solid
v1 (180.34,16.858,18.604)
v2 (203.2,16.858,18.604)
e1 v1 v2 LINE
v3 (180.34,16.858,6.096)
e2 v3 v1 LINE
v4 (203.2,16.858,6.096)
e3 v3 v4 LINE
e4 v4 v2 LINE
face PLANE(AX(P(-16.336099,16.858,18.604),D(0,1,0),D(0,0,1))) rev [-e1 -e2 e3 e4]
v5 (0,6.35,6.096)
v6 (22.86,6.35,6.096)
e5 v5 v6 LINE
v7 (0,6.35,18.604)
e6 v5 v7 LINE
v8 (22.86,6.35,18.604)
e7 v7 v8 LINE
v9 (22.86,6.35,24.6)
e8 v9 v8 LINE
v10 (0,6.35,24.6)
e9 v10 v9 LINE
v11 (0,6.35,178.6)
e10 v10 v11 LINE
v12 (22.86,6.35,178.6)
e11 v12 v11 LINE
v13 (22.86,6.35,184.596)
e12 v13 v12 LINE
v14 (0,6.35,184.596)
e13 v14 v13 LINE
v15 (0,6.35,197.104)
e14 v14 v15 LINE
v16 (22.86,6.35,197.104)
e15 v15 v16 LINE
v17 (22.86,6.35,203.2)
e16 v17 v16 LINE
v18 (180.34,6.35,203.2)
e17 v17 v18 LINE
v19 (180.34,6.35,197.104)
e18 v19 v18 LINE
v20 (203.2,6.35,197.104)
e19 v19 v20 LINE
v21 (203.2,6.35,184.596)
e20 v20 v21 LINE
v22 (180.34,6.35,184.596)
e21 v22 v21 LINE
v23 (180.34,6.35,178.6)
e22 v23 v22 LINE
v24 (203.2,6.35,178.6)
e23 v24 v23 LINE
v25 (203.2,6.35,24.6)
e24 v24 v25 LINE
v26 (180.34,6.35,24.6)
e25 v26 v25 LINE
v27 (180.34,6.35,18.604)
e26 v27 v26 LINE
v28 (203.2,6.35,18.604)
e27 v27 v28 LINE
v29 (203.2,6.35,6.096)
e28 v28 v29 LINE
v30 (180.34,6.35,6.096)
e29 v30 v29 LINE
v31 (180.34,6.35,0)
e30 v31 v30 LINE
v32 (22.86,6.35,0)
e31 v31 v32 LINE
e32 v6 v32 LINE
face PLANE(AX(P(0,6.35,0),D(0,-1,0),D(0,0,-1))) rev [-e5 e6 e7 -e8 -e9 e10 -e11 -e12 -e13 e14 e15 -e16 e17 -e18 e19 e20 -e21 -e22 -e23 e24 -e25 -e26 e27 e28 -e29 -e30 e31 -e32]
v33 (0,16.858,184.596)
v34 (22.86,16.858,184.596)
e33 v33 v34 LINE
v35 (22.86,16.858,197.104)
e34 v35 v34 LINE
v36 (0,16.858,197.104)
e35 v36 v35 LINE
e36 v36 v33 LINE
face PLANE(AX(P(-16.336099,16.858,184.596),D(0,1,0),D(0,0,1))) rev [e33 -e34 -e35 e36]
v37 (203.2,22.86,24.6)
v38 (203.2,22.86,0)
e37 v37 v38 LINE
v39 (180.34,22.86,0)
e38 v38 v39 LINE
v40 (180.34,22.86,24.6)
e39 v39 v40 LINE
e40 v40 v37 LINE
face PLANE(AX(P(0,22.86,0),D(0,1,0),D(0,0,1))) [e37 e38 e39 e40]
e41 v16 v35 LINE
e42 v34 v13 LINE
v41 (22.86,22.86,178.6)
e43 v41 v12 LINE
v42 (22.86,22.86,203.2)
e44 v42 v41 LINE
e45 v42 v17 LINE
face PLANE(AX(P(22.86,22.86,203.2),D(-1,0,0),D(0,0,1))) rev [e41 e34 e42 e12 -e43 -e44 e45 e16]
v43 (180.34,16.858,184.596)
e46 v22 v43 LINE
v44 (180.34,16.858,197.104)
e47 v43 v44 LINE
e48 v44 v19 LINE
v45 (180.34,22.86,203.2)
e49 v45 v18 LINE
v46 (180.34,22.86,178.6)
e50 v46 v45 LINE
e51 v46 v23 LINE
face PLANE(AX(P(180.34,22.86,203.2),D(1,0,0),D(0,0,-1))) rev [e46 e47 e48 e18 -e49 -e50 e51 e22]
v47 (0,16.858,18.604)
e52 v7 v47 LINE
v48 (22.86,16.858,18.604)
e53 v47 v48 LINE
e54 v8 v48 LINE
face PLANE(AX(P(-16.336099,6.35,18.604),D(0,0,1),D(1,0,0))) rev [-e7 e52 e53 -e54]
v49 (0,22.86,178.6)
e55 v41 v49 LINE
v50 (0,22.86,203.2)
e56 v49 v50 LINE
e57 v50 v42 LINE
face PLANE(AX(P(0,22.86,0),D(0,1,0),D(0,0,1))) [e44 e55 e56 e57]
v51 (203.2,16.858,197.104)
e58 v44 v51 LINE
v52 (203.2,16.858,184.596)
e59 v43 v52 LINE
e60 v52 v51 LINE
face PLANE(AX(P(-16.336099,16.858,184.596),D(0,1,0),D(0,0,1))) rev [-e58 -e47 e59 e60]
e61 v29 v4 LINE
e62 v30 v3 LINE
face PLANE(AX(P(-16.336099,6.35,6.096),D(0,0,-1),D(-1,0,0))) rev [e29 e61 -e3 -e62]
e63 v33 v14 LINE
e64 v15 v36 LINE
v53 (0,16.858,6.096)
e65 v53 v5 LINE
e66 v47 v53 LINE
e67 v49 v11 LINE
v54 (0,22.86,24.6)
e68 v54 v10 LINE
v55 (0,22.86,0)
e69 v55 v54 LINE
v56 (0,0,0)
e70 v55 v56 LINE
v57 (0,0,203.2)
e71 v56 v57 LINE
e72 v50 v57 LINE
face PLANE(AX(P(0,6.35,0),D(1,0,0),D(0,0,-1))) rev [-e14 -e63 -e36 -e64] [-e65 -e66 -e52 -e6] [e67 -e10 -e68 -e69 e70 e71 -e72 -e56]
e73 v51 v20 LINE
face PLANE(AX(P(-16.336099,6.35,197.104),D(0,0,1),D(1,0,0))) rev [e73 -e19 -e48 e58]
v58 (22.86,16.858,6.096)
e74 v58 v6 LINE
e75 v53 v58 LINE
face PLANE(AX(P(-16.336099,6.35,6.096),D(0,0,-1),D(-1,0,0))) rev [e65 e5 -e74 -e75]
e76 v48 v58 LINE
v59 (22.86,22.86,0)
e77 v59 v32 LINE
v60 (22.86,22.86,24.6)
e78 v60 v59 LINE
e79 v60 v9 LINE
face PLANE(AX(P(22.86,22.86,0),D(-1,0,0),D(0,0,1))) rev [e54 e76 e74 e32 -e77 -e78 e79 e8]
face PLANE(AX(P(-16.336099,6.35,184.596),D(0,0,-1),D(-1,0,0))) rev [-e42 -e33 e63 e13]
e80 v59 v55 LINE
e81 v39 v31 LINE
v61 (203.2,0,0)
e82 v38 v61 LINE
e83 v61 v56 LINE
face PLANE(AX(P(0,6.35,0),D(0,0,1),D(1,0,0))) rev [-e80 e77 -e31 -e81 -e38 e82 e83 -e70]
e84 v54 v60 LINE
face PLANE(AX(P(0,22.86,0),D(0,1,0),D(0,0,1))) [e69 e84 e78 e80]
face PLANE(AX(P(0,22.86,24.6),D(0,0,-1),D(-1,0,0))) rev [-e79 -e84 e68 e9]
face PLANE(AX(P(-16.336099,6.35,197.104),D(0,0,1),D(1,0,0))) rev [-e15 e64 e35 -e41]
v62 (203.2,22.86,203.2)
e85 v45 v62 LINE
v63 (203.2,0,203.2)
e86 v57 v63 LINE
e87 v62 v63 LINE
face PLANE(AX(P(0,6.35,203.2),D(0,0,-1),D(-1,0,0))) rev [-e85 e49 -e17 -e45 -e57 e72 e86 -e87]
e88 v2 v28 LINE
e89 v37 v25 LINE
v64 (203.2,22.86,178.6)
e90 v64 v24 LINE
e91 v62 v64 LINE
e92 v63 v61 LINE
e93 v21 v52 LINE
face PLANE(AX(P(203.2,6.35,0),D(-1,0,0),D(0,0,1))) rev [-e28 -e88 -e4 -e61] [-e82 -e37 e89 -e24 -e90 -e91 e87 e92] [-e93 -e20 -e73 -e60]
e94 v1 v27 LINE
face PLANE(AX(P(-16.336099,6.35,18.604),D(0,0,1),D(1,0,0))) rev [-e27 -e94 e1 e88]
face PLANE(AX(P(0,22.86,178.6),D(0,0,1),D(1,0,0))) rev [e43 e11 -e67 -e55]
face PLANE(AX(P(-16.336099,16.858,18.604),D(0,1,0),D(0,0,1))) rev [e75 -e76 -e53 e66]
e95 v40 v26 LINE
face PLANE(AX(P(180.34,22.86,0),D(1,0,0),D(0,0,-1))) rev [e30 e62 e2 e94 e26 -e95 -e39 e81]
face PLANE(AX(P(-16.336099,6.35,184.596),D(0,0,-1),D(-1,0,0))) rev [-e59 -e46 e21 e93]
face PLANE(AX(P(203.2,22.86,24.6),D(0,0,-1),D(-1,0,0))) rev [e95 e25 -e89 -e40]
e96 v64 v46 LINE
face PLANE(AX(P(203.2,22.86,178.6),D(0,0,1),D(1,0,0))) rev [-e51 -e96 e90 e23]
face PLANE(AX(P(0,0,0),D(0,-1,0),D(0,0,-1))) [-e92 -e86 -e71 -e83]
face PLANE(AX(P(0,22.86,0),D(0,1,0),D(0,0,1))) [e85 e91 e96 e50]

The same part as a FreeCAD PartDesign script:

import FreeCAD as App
import Part
import Sketcher

V = App.Vector
Q = App.Units.Quantity

doc = App.newDocument("Part")
body = doc.addObject("PartDesign::Body", "Body")

sketch1 = body.newObject("Sketcher::SketchObject", "Sketch")
sketch1.AttachmentSupport = (doc.getObject("XZ_Plane"), [""])
sketch1.MapMode = "FlatFace"
sketch1.addGeometry([
    Part.LineSegment(V(0, 0, 0), V(0, 203, 0)),
    Part.LineSegment(V(0, 203, 0), V(203, 203, 0)),
    Part.LineSegment(V(203, 203, 0), V(203, 0, 0)),
    Part.LineSegment(V(203, 0, 0), V(0, 0, 0)),
], False)
sketch1.addConstraint([
    Sketcher.Constraint("Coincident", 0, 2, 1, 1),
    Sketcher.Constraint("Coincident", 1, 2, 2, 1),
    Sketcher.Constraint("Coincident", 2, 2, 3, 1),
    Sketcher.Constraint("Coincident", 3, 2, 0, 1),
    Sketcher.Constraint("Vertical", 0),
    Sketcher.Constraint("Horizontal", 1),
    Sketcher.Constraint("Vertical", 2),
    Sketcher.Constraint("Horizontal", 3),
    Sketcher.Constraint("Coincident", 3, 2, -1, 1),
    Sketcher.Constraint("Equal", 3, 0),
    Sketcher.Constraint("DistanceX", 1, 1, 1, 2, Q("8 in")),
])
pad1 = body.newObject("PartDesign::Pad", "Pad")
pad1.Profile = sketch1
pad1.Length = Q("0.25 in")
pad1.Reversed = True

sketch2 = body.newObject("Sketcher::SketchObject", "Sketch001")
sketch2.AttachmentSupport = (doc.getObject("XZ_Plane"), [""])
sketch2.MapMode = "FlatFace"
sketch2.AttachmentOffset = App.Placement(V(0, 0, -0.25 * 25.4), App.Rotation())
sketch2.addGeometry([
    Part.LineSegment(V(180, 179, 0), V(180, 203, 0)),
    Part.LineSegment(V(180, 203, 0), V(203, 203, 0)),
    Part.LineSegment(V(203, 203, 0), V(203, 179, 0)),
    Part.LineSegment(V(203, 179, 0), V(180, 179, 0)),
    Part.LineSegment(V(0, 179, 0), V(0, 203, 0)),
    Part.LineSegment(V(0, 203, 0), V(23, 203, 0)),
    Part.LineSegment(V(23, 203, 0), V(23, 179, 0)),
    Part.LineSegment(V(23, 179, 0), V(0, 179, 0)),
    Part.LineSegment(V(0, 0, 0), V(0, 25, 0)),
    Part.LineSegment(V(0, 25, 0), V(23, 25, 0)),
    Part.LineSegment(V(23, 25, 0), V(23, 0, 0)),
    Part.LineSegment(V(23, 0, 0), V(0, 0, 0)),
    Part.LineSegment(V(180, 0, 0), V(180, 25, 0)),
    Part.LineSegment(V(180, 25, 0), V(203, 25, 0)),
    Part.LineSegment(V(203, 25, 0), V(203, 0, 0)),
    Part.LineSegment(V(203, 0, 0), V(180, 0, 0)),
], False)
sketch2.addConstraint([
    Sketcher.Constraint("Coincident", 0, 2, 1, 1),
    Sketcher.Constraint("Coincident", 1, 2, 2, 1),
    Sketcher.Constraint("Coincident", 2, 2, 3, 1),
    Sketcher.Constraint("Coincident", 3, 2, 0, 1),
    Sketcher.Constraint("Coincident", 4, 2, 5, 1),
    Sketcher.Constraint("Coincident", 5, 2, 6, 1),
    Sketcher.Constraint("Coincident", 6, 2, 7, 1),
    Sketcher.Constraint("Coincident", 7, 2, 4, 1),
    Sketcher.Constraint("Coincident", 8, 2, 9, 1),
    Sketcher.Constraint("Coincident", 9, 2, 10, 1),
    Sketcher.Constraint("Coincident", 10, 2, 11, 1),
    Sketcher.Constraint("Coincident", 11, 2, 8, 1),
    Sketcher.Constraint("Coincident", 12, 2, 13, 1),
    Sketcher.Constraint("Coincident", 13, 2, 14, 1),
    Sketcher.Constraint("Coincident", 14, 2, 15, 1),
    Sketcher.Constraint("Coincident", 15, 2, 12, 1),
    Sketcher.Constraint("Vertical", 0),
    Sketcher.Constraint("Horizontal", 1),
    Sketcher.Constraint("Vertical", 2),
    Sketcher.Constraint("Horizontal", 3),
    Sketcher.Constraint("Vertical", 4),
    Sketcher.Constraint("Horizontal", 5),
    Sketcher.Constraint("Vertical", 6),
    Sketcher.Constraint("Horizontal", 7),
    Sketcher.Constraint("Vertical", 8),
    Sketcher.Constraint("Horizontal", 9),
    Sketcher.Constraint("Vertical", 10),
    Sketcher.Constraint("Horizontal", 11),
    Sketcher.Constraint("Vertical", 12),
    Sketcher.Constraint("Horizontal", 13),
    Sketcher.Constraint("Vertical", 14),
    Sketcher.Constraint("Horizontal", 15),
    Sketcher.Constraint("Coincident", 11, 2, -1, 1),
    Sketcher.Constraint("PointOnObject", 4, 2, -2),
    Sketcher.Constraint("PointOnObject", 14, 2, -1),
    Sketcher.Constraint("Horizontal", 1, 2, 4, 2),
    Sketcher.Constraint("Horizontal", 3, 2, 6, 2),
    Sketcher.Constraint("Horizontal", 9, 2, 12, 2),
    Sketcher.Constraint("Vertical", 6, 2, 9, 2),
    Sketcher.Constraint("Vertical", 3, 2, 12, 2),
    Sketcher.Constraint("Vertical", 2, 2, 13, 2),
    Sketcher.Constraint("Equal", 3, 5),
    Sketcher.Constraint("Equal", 6, 8),
    Sketcher.Constraint("DistanceX", 1, 1, 1, 2, Q("0.9 in")),
    Sketcher.Constraint("DistanceY", -1, 1, 0, 2, Q("8 in")),
    Sketcher.Constraint("DistanceX", -1, 1, 1, 2, Q("8 in")),
    Sketcher.Constraint("DistanceY", 0, 1, 0, 2, Q("24.6 mm")),
])
pad2 = body.newObject("PartDesign::Pad", "Pad001")
pad2.Profile = sketch2
pad2.Length = Q("0.65 in")
pad2.Reversed = True

sketch3 = body.newObject("Sketcher::SketchObject", "Sketch002")
sketch3.AttachmentSupport = (doc.getObject("YZ_Plane"), [""])
sketch3.MapMode = "FlatFace"
sketch3.addGeometry([
    Part.LineSegment(V(17, 197, 0), V(6, 197, 0)),
    Part.LineSegment(V(6, 197, 0), V(6, 185, 0)),
    Part.LineSegment(V(6, 185, 0), V(17, 185, 0)),
    Part.LineSegment(V(17, 185, 0), V(17, 197, 0)),
    Part.LineSegment(V(17, 19, 0), V(6, 19, 0)),
    Part.LineSegment(V(6, 19, 0), V(6, 6, 0)),
    Part.LineSegment(V(6, 6, 0), V(17, 6, 0)),
    Part.LineSegment(V(17, 6, 0), V(17, 19, 0)),
], False)
sketch3.addConstraint([
    Sketcher.Constraint("Coincident", 0, 2, 1, 1),
    Sketcher.Constraint("Coincident", 1, 2, 2, 1),
    Sketcher.Constraint("Coincident", 2, 2, 3, 1),
    Sketcher.Constraint("Coincident", 3, 2, 0, 1),
    Sketcher.Constraint("Coincident", 4, 2, 5, 1),
    Sketcher.Constraint("Coincident", 5, 2, 6, 1),
    Sketcher.Constraint("Coincident", 6, 2, 7, 1),
    Sketcher.Constraint("Coincident", 7, 2, 4, 1),
    Sketcher.Constraint("Horizontal", 0),
    Sketcher.Constraint("Vertical", 1),
    Sketcher.Constraint("Horizontal", 2),
    Sketcher.Constraint("Vertical", 3),
    Sketcher.Constraint("Horizontal", 4),
    Sketcher.Constraint("Vertical", 5),
    Sketcher.Constraint("Horizontal", 6),
    Sketcher.Constraint("Vertical", 7),
    Sketcher.Constraint("Vertical", 1, 2, 4, 2),
    Sketcher.Constraint("Vertical", 3, 2, 6, 2),
    Sketcher.Constraint("Equal", 3, 5),
    Sketcher.Constraint("DistanceX", -1, 1, 0, 2, Q("0.25 in")),
    Sketcher.Constraint("DistanceY", -1, 1, 0, 2, Q("7.76 in")),
    Sketcher.Constraint("DistanceY", -1, 1, 5, 2, Q("0.24 in")),
    Sketcher.Constraint("DistanceX", 0, 2, 0, 1, Q("10.508 mm")),
    Sketcher.Constraint("DistanceY", 1, 2, 1, 1, Q("12.508 mm")),
])
pocket1 = body.newObject("PartDesign::Pocket", "Pocket")
pocket1.Profile = sketch3
pocket1.Length = Q("8 in")
pocket1.Reversed = True

doc.recompute()
